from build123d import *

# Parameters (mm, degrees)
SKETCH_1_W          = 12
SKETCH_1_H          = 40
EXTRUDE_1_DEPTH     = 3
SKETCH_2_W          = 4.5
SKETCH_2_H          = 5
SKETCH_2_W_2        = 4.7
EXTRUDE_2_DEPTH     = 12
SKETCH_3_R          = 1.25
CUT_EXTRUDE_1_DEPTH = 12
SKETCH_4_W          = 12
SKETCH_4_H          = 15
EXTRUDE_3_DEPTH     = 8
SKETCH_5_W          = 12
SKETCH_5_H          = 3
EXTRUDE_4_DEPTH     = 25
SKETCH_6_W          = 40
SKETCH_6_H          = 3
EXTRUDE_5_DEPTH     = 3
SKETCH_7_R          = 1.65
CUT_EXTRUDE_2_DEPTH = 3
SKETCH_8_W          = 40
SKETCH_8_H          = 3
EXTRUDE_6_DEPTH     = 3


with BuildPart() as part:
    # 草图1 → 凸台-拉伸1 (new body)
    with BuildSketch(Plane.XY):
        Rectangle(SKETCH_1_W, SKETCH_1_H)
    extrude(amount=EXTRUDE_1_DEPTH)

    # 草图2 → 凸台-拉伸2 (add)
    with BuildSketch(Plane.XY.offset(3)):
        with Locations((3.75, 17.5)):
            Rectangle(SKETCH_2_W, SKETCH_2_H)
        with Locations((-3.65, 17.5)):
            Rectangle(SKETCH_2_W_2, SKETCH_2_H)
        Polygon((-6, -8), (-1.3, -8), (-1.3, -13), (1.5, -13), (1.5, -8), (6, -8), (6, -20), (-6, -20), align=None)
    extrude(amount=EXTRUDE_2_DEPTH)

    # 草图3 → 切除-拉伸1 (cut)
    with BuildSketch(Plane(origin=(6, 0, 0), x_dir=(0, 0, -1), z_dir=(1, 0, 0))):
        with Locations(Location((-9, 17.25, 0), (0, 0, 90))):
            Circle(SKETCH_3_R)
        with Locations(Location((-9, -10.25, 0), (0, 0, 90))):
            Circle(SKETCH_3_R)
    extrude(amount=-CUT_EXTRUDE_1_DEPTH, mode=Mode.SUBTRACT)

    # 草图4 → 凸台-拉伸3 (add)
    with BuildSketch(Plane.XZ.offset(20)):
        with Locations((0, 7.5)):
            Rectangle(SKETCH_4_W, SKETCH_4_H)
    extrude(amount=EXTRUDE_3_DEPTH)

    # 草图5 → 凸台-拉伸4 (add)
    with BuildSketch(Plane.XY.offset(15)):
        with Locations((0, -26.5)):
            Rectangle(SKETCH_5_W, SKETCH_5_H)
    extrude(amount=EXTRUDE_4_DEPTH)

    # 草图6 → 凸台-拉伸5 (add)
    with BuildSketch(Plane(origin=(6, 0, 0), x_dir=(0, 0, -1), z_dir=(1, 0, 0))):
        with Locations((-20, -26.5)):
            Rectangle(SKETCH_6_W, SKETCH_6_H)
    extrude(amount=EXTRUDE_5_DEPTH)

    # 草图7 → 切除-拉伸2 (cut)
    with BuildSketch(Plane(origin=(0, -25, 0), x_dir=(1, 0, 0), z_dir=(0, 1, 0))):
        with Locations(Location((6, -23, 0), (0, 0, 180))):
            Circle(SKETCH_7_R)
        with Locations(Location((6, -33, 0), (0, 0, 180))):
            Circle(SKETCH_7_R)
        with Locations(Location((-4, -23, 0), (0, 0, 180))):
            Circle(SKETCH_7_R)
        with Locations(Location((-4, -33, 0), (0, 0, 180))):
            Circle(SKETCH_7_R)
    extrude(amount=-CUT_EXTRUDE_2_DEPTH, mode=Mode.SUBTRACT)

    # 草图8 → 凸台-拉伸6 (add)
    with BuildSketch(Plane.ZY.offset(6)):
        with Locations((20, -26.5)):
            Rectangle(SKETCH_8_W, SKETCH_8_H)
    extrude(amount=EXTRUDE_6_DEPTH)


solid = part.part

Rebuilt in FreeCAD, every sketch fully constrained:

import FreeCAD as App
import Part
import Sketcher
from FreeCAD import Vector


def add_polygon(sketch, points):
    """Adds a closed chain of lines whose ends are joined by coincident constraints."""
    first, n = sketch.GeometryCount, len(points)
    for a, b in zip(points, points[1:] + points[:1]):
        sketch.addGeometry(Part.LineSegment(App.Vector(*a, 0), App.Vector(*b, 0)), False)
    for i in range(n):
        sketch.addConstraint(Sketcher.Constraint("Coincident", first + i, 2, first + (i + 1) % n, 1))

doc = App.newDocument("Part")
body = doc.addObject("PartDesign::Body", "Body")

# Sketch on XY plane
sketch1 = body.newObject("Sketcher::SketchObject", "Sketch")
sketch1.AttachmentSupport = (doc.getObject("XY_Plane"), [""])
sketch1.MapMode = "FlatFace"
add_polygon(sketch1, [(-6, 20), (-6, -20), (6, -20), (6, 20)])  # lines 0-3
sketch1.addConstraint(Sketcher.Constraint("Vertical", 0))
sketch1.addConstraint(Sketcher.Constraint("Horizontal", 1))
sketch1.addConstraint(Sketcher.Constraint("Vertical", 2))
sketch1.addConstraint(Sketcher.Constraint("Horizontal", 3))
sketch1.addConstraint(Sketcher.Constraint("Symmetric", 0, 2, 2, 2, -1, 1))
sketch1.addConstraint(Sketcher.Constraint("DistanceX", 1, 1, 1, 2, 12.0))
sketch1.addConstraint(Sketcher.Constraint("DistanceY", 0, 2, 0, 1, 40.0))
pad1 = body.newObject("PartDesign::Pad", "Pad")
pad1.Profile = sketch1
pad1.Length = 3

# Sketch on XY plane
sketch2 = body.newObject("Sketcher::SketchObject", "Sketch001")
sketch2.AttachmentSupport = (doc.getObject("XY_Plane"), [""])
sketch2.MapMode = "FlatFace"
sketch2.AttachmentOffset = App.Placement(Vector(0, 0, 3), App.Rotation())
add_polygon(sketch2, [(1.5, 20), (1.5, 15), (6, 15), (6, 20)])  # lines 0-3
add_polygon(sketch2, [(-6, 20), (-6, 15), (-1.3, 15), (-1.3, 20)])  # lines 4-7
add_polygon(sketch2, [(-1.3, -8), (-6, -8), (-6, -20), (6, -20), (6, -8), (1.5, -8), (1.5, -13), (-1.3, -13)])  # lines 8-15
sketch2.addConstraint(Sketcher.Constraint("Vertical", 0))
sketch2.addConstraint(Sketcher.Constraint("Horizontal", 1))
sketch2.addConstraint(Sketcher.Constraint("Vertical", 2))
sketch2.addConstraint(Sketcher.Constraint("Horizontal", 3))
sketch2.addConstraint(Sketcher.Constraint("Vertical", 4))
sketch2.addConstraint(Sketcher.Constraint("Horizontal", 5))
sketch2.addConstraint(Sketcher.Constraint("Vertical", 6))
sketch2.addConstraint(Sketcher.Constraint("Horizontal", 7))
sketch2.addConstraint(Sketcher.Constraint("Horizontal", 8))
sketch2.addConstraint(Sketcher.Constraint("Vertical", 9))
sketch2.addConstraint(Sketcher.Constraint("Horizontal", 10))
sketch2.addConstraint(Sketcher.Constraint("Vertical", 11))
sketch2.addConstraint(Sketcher.Constraint("Horizontal", 12))
sketch2.addConstraint(Sketcher.Constraint("Vertical", 13))
sketch2.addConstraint(Sketcher.Constraint("Horizontal", 14))
sketch2.addConstraint(Sketcher.Constraint("Vertical", 15))
sketch2.addConstraint(Sketcher.Constraint("Symmetric", 2, 2, 9, 2, -1, 1))
sketch2.addConstraint(Sketcher.Constraint("Symmetric", 7, 2, 10, 2, -1, 1))
sketch2.addConstraint(Sketcher.Constraint("Symmetric", 1, 2, 4, 2, -2))
sketch2.addConstraint(Sketcher.Constraint("Horizontal", 8, 2, 11, 2))
sketch2.addConstraint(Sketcher.Constraint("Vertical", 3, 2, 12, 2))
sketch2.addConstraint(Sketcher.Constraint("Vertical", 6, 2, 14, 2))
sketch2.addConstraint(Sketcher.Constraint("Equal", 10, 9))
sketch2.addConstraint(Sketcher.Constraint("Equal", 6, 13))
sketch2.addConstraint(Sketcher.Constraint("DistanceX", 10, 1, 10, 2, 12.0))
sketch2.addConstraint(Sketcher.Constraint("DistanceY", 0, 2, 0, 1, 5.0))
sketch2.addConstraint(Sketcher.Constraint("DistanceX", 1, 1, 1, 2, 4.5))
sketch2.addConstraint(Sketcher.Constraint("DistanceX", 5, 1, 5, 2, 4.7))
sketch2.addConstraint(Sketcher.Constraint("DistanceY", -1, 1, 0, 2, 15.0))
pad2 = body.newObject("PartDesign::Pad", "Pad001")
pad2.Profile = sketch2
pad2.Length = 12

# Sketch on YZ plane
sketch3 = body.newObject("Sketcher::SketchObject", "Sketch002")
sketch3.AttachmentSupport = (doc.getObject("YZ_Plane"), [""])
sketch3.MapMode = "FlatFace"
sketch3.AttachmentOffset = App.Placement(Vector(0, 0, 6), App.Rotation())
sketch3.addGeometry(Part.Circle(Vector(17.25, 9, 0), Vector(0, 0, 1), 1.25), False)
sketch3.addGeometry(Part.Circle(Vector(-10.25, 9, 0), Vector(0, 0, 1), 1.25), False)
sketch3.addConstraint(Sketcher.Constraint("Equal", 0, 1))
sketch3.addConstraint(Sketcher.Constraint("Horizontal", 0, 3, 1, 3))
sketch3.addConstraint(Sketcher.Constraint("Diameter", 0, 2.5))
sketch3.addConstraint(Sketcher.Constraint("DistanceY", -1, 1, 0, 3, 9.0))
sketch3.addConstraint(Sketcher.Constraint("DistanceX", 1, 3, 0, 3, 27.5))
sketch3.addConstraint(Sketcher.Constraint("DistanceX", -1, 1, 0, 3, 17.25))
pocket1 = body.newObject("PartDesign::Pocket", "Pocket")
pocket1.Profile = sketch3
pocket1.Length = 12

# Sketch on XZ plane
sketch4 = body.newObject("Sketcher::SketchObject", "Sketch003")
sketch4.AttachmentSupport = (doc.getObject("XZ_Plane"), [""])
sketch4.MapMode = "FlatFace"
sketch4.AttachmentOffset = App.Placement(Vector(0, 0, 20), App.Rotation())
add_polygon(sketch4, [(-6, 15), (-6, 0), (6, 0), (6, 15)])  # lines 0-3
sketch4.addConstraint(Sketcher.Constraint("Vertical", 0))
sketch4.addConstraint(Sketcher.Constraint("Horizontal", 1))
sketch4.addConstraint(Sketcher.Constraint("Vertical", 2))
sketch4.addConstraint(Sketcher.Constraint("Horizontal", 3))
sketch4.addConstraint(Sketcher.Constraint("Symmetric", 0, 2, 1, 2, -1, 1))
sketch4.addConstraint(Sketcher.Constraint("DistanceX", 1, 1, 1, 2, 12.0))
sketch4.addConstraint(Sketcher.Constraint("DistanceY", 0, 2, 0, 1, 15.0))
pad3 = body.newObject("PartDesign::Pad", "Pad002")
pad3.Profile = sketch4
pad3.Length = 8

# Sketch on XY plane
sketch5 = body.newObject("Sketcher::SketchObject", "Sketch004")
sketch5.AttachmentSupport = (doc.getObject("XY_Plane"), [""])
sketch5.MapMode = "FlatFace"
sketch5.AttachmentOffset = App.Placement(Vector(0, 0, 15), App.Rotation())
add_polygon(sketch5, [(-6, -25), (-6, -28), (6, -28), (6, -25)])  # lines 0-3
sketch5.addConstraint(Sketcher.Constraint("Vertical", 0))
sketch5.addConstraint(Sketcher.Constraint("Horizontal", 1))
sketch5.addConstraint(Sketcher.Constraint("Vertical", 2))
sketch5.addConstraint(Sketcher.Constraint("Horizontal", 3))
sketch5.addConstraint(Sketcher.Constraint("DistanceX", 1, 1, 1, 2, 12.0))
sketch5.addConstraint(Sketcher.Constraint("DistanceY", 0, 2, 0, 1, 3.0))
sketch5.addConstraint(Sketcher.Constraint("DistanceX", 0, 2, -1, 1, 6.0))
sketch5.addConstraint(Sketcher.Constraint("DistanceY", 0, 2, -1, 1, 28.0))
pad4 = body.newObject("PartDesign::Pad", "Pad003")
pad4.Profile = sketch5
pad4.Length = 25

# Sketch on YZ plane
sketch6 = body.newObject("Sketcher::SketchObject", "Sketch005")
sketch6.AttachmentSupport = (doc.getObject("YZ_Plane"), [""])
sketch6.MapMode = "FlatFace"
sketch6.AttachmentOffset = App.Placement(Vector(0, 0, 6), App.Rotation())
add_polygon(sketch6, [(-25, 40), (-28, 40), (-28, 0), (-25, 0)])  # lines 0-3
sketch6.addConstraint(Sketcher.Constraint("Horizontal", 0))
sketch6.addConstraint(Sketcher.Constraint("Vertical", 1))
sketch6.addConstraint(Sketcher.Constraint("Horizontal", 2))
sketch6.addConstraint(Sketcher.Constraint("Vertical", 3))
sketch6.addConstraint(Sketcher.Constraint("PointOnObject", 1, 2, -1))
sketch6.addConstraint(Sketcher.Constraint("DistanceX", 0, 2, 0, 1, 3.0))
sketch6.addConstraint(Sketcher.Constraint("DistanceY", 1, 2, 1, 1, 40.0))
sketch6.addConstraint(Sketcher.Constraint("DistanceX", 0, 2, -1, 1, 28.0))
pad5 = body.newObject("PartDesign::Pad", "Pad004")
pad5.Profile = sketch6
pad5.Length = 3

# Sketch on XZ plane
sketch7 = body.newObject("Sketcher::SketchObject", "Sketch006")
sketch7.AttachmentSupport = (doc.getObject("XZ_Plane"), [""])
sketch7.MapMode = "FlatFace"
sketch7.AttachmentOffset = App.Placement(Vector(0, 0, 25), App.Rotation())
sketch7.addGeometry(Part.Circle(Vector(6, 23, 0), Vector(0, 0, 1), 1.65), False)
sketch7.addGeometry(Part.Circle(Vector(6, 33, 0), Vector(0, 0, 1), 1.65), False)
sketch7.addGeometry(Part.Circle(Vector(-4, 23, 0), Vector(0, 0, 1), 1.65), False)
sketch7.addGeometry(Part.Circle(Vector(-4, 33, 0), Vector(0, 0, 1), 1.65), False)
sketch7.addConstraint(Sketcher.Constraint("Equal", 0, 1))
sketch7.addConstraint(Sketcher.Constraint("Equal", 1, 2))
sketch7.addConstraint(Sketcher.Constraint("Equal", 2, 3))
sketch7.addConstraint(Sketcher.Constraint("Horizontal", 0, 3, 2, 3))
sketch7.addConstraint(Sketcher.Constraint("Horizontal", 1, 3, 3, 3))
sketch7.addConstraint(Sketcher.Constraint("Vertical", 0, 3, 1, 3))
sketch7.addConstraint(Sketcher.Constraint("Vertical", 2, 3, 3, 3))
sketch7.addConstraint(Sketcher.Constraint("Diameter", 0, 3.3))
sketch7.addConstraint(Sketcher.Constraint("DistanceX", -1, 1, 0, 3, 6.0))
sketch7.addConstraint(Sketcher.Constraint("DistanceY", -1, 1, 0, 3, 23.0))
sketch7.addConstraint(Sketcher.Constraint("DistanceY", -1, 1, 1, 3, 33.0))
sketch7.addConstraint(Sketcher.Constraint("DistanceX", 2, 3, -1, 1, 4.0))
pocket2 = body.newObject("PartDesign::Pocket", "Pocket001")
pocket2.Profile = sketch7
pocket2.Length = 3
pocket2.Reversed = True

# Sketch on YZ plane
sketch8 = body.newObject("Sketcher::SketchObject", "Sketch007")
sketch8.AttachmentSupport = (doc.getObject("YZ_Plane"), [""])
sketch8.MapMode = "FlatFace"
sketch8.AttachmentOffset = App.Placement(Vector(0, 0, -6), App.Rotation())
add_polygon(sketch8, [(-25, 0), (-28, 0), (-28, 40), (-25, 40)])  # lines 0-3
sketch8.addConstraint(Sketcher.Constraint("Horizontal", 0))
sketch8.addConstraint(Sketcher.Constraint("Vertical", 1))
sketch8.addConstraint(Sketcher.Constraint("Horizontal", 2))
sketch8.addConstraint(Sketcher.Constraint("Vertical", 3))
sketch8.addConstraint(Sketcher.Constraint("PointOnObject", 0, 2, -1))
sketch8.addConstraint(Sketcher.Constraint("DistanceX", 0, 2, 0, 1, 3.0))
sketch8.addConstraint(Sketcher.Constraint("DistanceY", 1, 1, 1, 2, 40.0))
sketch8.addConstraint(Sketcher.Constraint("DistanceX", 0, 2, -1, 1, 28.0))
pad6 = body.newObject("PartDesign::Pad", "Pad005")
pad6.Profile = sketch8
pad6.Length = 3
pad6.Reversed = True

doc.recompute()
